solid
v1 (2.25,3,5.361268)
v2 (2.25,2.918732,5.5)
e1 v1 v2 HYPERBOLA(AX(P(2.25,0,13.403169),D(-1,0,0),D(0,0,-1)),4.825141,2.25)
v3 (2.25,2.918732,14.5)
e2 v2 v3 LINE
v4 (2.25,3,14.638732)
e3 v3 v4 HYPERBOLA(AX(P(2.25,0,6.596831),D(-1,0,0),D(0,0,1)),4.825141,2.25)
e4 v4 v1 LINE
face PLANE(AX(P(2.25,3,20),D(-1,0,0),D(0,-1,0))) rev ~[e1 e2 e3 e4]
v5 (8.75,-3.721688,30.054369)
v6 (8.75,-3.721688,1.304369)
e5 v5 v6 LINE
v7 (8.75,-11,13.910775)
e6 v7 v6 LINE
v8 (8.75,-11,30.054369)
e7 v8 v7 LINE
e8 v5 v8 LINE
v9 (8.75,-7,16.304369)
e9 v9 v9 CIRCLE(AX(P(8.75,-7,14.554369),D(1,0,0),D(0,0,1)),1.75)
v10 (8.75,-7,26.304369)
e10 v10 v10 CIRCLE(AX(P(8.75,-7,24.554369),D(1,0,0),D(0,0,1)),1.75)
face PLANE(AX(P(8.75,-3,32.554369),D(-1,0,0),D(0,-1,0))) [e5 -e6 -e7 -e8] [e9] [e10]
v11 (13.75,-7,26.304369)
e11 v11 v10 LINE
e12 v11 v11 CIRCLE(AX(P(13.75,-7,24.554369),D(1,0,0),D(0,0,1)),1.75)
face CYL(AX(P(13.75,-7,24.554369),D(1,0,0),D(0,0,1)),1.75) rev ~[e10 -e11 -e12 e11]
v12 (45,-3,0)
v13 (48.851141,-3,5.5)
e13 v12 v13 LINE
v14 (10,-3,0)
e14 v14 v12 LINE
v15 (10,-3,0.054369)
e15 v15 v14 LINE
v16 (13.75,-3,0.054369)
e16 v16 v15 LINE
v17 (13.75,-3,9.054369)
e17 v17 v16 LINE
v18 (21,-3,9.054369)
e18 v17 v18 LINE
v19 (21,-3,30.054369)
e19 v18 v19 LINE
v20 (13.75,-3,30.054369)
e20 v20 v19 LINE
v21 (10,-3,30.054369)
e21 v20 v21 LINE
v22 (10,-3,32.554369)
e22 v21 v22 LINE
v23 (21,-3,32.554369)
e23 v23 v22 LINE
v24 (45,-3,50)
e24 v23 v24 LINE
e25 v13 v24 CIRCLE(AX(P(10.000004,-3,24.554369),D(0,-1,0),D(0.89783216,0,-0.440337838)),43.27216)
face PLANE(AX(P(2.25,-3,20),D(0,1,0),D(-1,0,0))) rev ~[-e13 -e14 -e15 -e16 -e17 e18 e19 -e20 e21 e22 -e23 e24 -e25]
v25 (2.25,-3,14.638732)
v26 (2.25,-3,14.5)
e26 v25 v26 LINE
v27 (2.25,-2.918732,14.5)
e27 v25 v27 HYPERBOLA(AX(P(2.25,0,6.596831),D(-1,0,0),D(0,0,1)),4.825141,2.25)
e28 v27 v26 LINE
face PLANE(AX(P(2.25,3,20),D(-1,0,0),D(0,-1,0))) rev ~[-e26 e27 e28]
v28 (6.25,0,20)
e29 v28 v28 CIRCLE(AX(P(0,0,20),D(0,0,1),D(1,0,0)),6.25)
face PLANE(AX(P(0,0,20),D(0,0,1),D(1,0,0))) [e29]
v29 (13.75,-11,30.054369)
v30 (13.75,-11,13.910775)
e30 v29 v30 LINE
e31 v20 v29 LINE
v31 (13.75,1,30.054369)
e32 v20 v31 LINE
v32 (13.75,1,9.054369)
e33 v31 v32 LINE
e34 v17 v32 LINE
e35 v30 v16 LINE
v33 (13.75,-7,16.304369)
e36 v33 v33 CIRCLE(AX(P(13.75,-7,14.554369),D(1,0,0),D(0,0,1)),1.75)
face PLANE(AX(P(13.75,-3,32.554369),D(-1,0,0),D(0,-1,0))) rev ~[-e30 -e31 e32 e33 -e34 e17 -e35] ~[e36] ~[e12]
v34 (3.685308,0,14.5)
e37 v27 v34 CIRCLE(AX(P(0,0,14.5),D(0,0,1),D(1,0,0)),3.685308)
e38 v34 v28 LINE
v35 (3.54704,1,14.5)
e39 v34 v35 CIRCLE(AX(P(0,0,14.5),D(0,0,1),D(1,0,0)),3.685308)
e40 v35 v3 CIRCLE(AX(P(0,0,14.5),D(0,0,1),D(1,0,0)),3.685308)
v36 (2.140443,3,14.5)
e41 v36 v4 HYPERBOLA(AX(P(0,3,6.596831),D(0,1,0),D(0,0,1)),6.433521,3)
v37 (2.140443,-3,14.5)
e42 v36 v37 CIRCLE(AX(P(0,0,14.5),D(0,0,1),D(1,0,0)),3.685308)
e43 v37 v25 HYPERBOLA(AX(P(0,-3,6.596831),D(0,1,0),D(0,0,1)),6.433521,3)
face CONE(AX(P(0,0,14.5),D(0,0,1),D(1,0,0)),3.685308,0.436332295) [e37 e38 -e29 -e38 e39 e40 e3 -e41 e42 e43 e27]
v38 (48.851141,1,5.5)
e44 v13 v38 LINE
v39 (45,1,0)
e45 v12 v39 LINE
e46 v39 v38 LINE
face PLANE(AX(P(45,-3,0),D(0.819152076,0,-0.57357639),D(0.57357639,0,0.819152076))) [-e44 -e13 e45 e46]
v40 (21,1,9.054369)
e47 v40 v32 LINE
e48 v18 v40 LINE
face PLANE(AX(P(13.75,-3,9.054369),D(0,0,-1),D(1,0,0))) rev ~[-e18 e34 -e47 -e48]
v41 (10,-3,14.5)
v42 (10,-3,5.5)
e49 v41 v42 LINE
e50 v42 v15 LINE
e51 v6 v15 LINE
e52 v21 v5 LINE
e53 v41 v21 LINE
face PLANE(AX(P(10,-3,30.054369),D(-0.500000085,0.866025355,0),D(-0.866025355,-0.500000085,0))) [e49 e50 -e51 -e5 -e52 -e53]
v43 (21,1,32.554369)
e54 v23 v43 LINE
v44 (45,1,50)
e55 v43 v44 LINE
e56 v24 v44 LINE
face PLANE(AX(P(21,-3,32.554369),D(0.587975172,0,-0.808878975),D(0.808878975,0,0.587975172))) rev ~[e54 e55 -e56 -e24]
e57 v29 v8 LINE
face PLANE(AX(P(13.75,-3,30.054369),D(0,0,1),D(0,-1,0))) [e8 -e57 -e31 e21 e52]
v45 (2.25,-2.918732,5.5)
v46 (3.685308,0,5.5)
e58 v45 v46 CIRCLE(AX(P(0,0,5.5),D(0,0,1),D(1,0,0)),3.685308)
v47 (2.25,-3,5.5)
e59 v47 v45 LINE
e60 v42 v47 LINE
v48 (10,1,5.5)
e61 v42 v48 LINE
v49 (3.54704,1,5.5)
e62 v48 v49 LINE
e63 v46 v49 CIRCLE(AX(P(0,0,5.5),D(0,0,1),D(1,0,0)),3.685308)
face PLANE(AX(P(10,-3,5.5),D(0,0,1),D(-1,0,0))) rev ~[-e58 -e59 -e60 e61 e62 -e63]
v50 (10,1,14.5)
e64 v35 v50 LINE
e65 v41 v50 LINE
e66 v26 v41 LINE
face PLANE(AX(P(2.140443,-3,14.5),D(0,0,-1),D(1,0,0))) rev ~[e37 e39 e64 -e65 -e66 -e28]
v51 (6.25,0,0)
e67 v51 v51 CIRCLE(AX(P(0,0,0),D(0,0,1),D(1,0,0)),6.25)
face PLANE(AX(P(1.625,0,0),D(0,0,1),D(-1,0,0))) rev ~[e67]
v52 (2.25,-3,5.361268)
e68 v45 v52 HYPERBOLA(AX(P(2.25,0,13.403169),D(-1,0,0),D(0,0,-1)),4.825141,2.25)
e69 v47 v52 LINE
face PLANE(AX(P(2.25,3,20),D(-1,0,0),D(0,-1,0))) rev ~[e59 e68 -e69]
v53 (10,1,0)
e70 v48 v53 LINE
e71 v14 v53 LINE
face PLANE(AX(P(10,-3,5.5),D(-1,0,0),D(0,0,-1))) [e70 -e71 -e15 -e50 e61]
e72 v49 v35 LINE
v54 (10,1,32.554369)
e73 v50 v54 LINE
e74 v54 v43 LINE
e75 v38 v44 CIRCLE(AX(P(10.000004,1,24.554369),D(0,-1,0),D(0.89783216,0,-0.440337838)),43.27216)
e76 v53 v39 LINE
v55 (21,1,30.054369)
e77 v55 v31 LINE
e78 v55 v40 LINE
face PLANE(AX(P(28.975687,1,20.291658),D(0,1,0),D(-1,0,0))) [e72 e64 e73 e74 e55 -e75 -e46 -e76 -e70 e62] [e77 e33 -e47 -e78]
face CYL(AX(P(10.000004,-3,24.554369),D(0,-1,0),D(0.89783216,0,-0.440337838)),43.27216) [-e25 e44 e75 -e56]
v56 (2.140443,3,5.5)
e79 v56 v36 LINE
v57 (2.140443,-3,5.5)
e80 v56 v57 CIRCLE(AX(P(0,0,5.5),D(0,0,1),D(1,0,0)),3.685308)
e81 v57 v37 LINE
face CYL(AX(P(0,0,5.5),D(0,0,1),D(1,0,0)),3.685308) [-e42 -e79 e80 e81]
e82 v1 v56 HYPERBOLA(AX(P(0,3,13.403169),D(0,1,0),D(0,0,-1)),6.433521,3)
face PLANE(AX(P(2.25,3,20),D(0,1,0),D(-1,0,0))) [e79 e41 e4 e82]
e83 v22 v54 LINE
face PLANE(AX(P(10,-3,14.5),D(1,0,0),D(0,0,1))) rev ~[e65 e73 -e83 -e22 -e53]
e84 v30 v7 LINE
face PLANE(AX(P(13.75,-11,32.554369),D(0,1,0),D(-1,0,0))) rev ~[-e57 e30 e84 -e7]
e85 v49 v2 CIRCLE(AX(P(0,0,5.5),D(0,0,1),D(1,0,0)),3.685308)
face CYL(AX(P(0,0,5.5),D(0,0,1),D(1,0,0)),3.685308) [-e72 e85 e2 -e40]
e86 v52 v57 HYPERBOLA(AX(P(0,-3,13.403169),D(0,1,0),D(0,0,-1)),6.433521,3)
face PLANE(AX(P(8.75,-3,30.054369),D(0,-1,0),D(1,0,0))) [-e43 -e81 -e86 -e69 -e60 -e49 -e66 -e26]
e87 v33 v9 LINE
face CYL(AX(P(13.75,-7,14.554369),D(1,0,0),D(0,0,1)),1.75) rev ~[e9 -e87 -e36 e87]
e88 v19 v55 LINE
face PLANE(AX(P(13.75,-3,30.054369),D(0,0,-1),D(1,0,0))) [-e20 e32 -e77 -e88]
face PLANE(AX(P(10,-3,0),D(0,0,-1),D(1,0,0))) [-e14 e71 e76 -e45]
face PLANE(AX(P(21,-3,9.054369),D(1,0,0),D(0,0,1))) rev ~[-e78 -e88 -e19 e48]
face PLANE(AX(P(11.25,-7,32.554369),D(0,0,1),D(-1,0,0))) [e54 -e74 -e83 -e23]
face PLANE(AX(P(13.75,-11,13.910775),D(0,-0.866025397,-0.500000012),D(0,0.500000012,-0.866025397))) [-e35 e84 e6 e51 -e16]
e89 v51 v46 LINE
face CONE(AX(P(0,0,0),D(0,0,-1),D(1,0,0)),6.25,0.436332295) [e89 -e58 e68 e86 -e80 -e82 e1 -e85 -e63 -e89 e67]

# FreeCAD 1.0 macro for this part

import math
import FreeCAD as App
import Part
import Sketcher
from FreeCAD import Vector
Q = App.Units.Quantity


def add_polygon(sketch, points):
    """Adds a closed chain of lines whose ends are joined by coincident constraints."""
    first, n = sketch.GeometryCount, len(points)
    for a, b in zip(points, points[1:] + points[:1]):
        sketch.addGeometry(Part.LineSegment(App.Vector(*a, 0), App.Vector(*b, 0)), False)
    for i in range(n):
        sketch.addConstraint(Sketcher.Constraint("Coincident", first + i, 2, first + (i + 1) % n, 1))

doc = App.newDocument("Part")
params = doc.addObject("Spreadsheet::Sheet", "Params")
for row, (alias, value) in enumerate([
    ("sketch1_height", "9 mm"),
    ("sketch1_height2", "20 mm"),
    ("sketch1_width", "6.25 mm"),
    ("revolution_angle", "360 deg"),
    ("sketch2_height", "6 mm"),
    ("sketch2_width", "1.25 mm"),
    ("pad1_length", "20 mm"),
    ("sketch3_width", "35 mm"),
    ("sketch3_width2", "11 mm"),
    ("sketch3_height", "9 mm"),
    ("sketch3_height2", "5.5 mm"),
    ("pad2_length", "4 mm"),
    ("sketch4_height", "21 mm"),
    ("sketch4_width", "7.25 mm"),
    ("pocket1_length", "5 mm"),
    ("sketch5_width", "5 mm"),
    ("sketch5_height", "8 mm"),
    ("pad3_length", "32.5 mm"),
    ("sketch6_diameter", "3.5 mm"),
    ("sketch6_width", "8 mm"),
    ("sketch6_height", "2.5 mm"),
    ("pocket2_length", "5 mm"),
    ("sketch7_width", "1.25 mm"),
], start=1):
    params.set(f"A{row}", alias)
    params.set(f"B{row}", "=" + value)
    params.setAlias(f"B{row}", alias)

body = doc.addObject("PartDesign::Body", "Body")

# Sketch on XZ plane
sketch1 = doc.addObject("Sketcher::SketchObject", "Sketch")
body.addObject(sketch1)
sketch1.AttachmentSupport = (doc.XZ_Plane, [""])
sketch1.MapMode = "FlatFace"
add_polygon(sketch1, [(0, 0), (6, 0), (4, 6), (4, 14), (6, 20), (0, 20)])  # lines 0-5
sketch1.addConstraint(Sketcher.Constraint("Horizontal", 0))
sketch1.addConstraint(Sketcher.Constraint("Vertical", 2))
sketch1.addConstraint(Sketcher.Constraint("Horizontal", 4))
sketch1.addConstraint(Sketcher.Constraint("Vertical", 5))
sketch1.addConstraint(Sketcher.Constraint("Coincident", 5, 2, -1, 1))
sketch1.addConstraint(Sketcher.Constraint("Vertical", 0, 2, 3, 2))
sketch1.addConstraint(Sketcher.Constraint("Equal", 1, 3))
sketch1.addConstraint(Sketcher.Constraint("DistanceY", 2, 1, 2, 2, Q("9 mm")))
sketch1.addConstraint(Sketcher.Constraint("DistanceY", 5, 2, 5, 1, Q("20 mm")))
sketch1.addConstraint(Sketcher.Constraint("Angle", 1, Q("114.999999 deg")))
sketch1.addConstraint(Sketcher.Constraint("DistanceX", 0, 1, 0, 2, Q("6.25 mm")))
sketch1.setExpression("Constraints[13]", "Params.sketch1_height")
sketch1.setExpression("Constraints[14]", "Params.sketch1_height2")
sketch1.setExpression("Constraints[16]", "Params.sketch1_width")
revolution = doc.addObject("PartDesign::Revolution", "Revolution")
body.addObject(revolution)
revolution.Profile = sketch1
revolution.ReferenceAxis = (sketch1, ["V_Axis"])
revolution.setExpression("Angle", "Params.revolution_angle")

# Sketch on XY plane
sketch2 = doc.addObject("Sketcher::SketchObject", "Sketch001")
body.addObject(sketch2)
sketch2.AttachmentSupport = (doc.XY_Plane, [""])
sketch2.MapMode = "FlatFace"
sketch2.AttachmentOffset = App.Placement(Vector(0, 0, 20), App.Rotation())
add_polygon(sketch2, [(2.2, -3), (2.2, 3), (1, 3), (1, -3)])  # lines 0-3
sketch2.addConstraint(Sketcher.Constraint("Vertical", 0))
sketch2.addConstraint(Sketcher.Constraint("Horizontal", 1))
sketch2.addConstraint(Sketcher.Constraint("Vertical", 2))
sketch2.addConstraint(Sketcher.Constraint("Horizontal", 3))
sketch2.addConstraint(Sketcher.Constraint("DistanceY", 0, 1, 0, 2, Q("6 mm")))
sketch2.addConstraint(Sketcher.Constraint("DistanceY", -1, 1, 0, 2, Q("3 mm")))
sketch2.addConstraint(Sketcher.Constraint("DistanceX", -1, 1, 1, 2, Q("1 mm")))
sketch2.addConstraint(Sketcher.Constraint("DistanceX", 1, 2, 1, 1, Q("1.25 mm")))
sketch2.setExpression("Constraints[8]", "Params.sketch2_height")
sketch2.setExpression("Constraints[11]", "Params.sketch2_width")
pad1 = doc.addObject("PartDesign::Pad", "Pad")
body.addObject(pad1)
pad1.Profile = sketch2
pad1.setExpression("Length", "Params.pad1_length")
pad1.Reversed = True

# Sketch on XZ plane
sketch3 = doc.addObject("Sketcher::SketchObject", "Sketch002")
body.addObject(sketch3)
sketch3.AttachmentSupport = (doc.XZ_Plane, [""])
sketch3.MapMode = "FlatFace"
sketch3.AttachmentOffset = App.Placement(Vector(0, 0, 3), App.Rotation())
sketch3.addGeometry(Part.LineSegment(Vector(10, 14, 0), Vector(2, 14, 0)), False)
sketch3.addGeometry(Part.LineSegment(Vector(2, 14, 0), Vector(2, 6, 0)), False)
sketch3.addGeometry(Part.LineSegment(Vector(2, 6, 0), Vector(10, 6, 0)), False)
sketch3.addGeometry(Part.LineSegment(Vector(10, 6, 0), Vector(10, 0, 0)), False)
sketch3.addGeometry(Part.LineSegment(Vector(10, 0, 0), Vector(45, 0, 0)), False)
sketch3.addGeometry(Part.LineSegment(Vector(45, 0, 0), Vector(49, 6, 0)), False)
sketch3.addGeometry(Part.ArcOfCircle(Part.Circle(Vector(10, 25, 0), Vector(0, 0, 1), 43), math.radians(-26), math.radians(36)), False)
sketch3.addGeometry(Part.LineSegment(Vector(45, 50, 0), Vector(21, 33, 0)), False)
sketch3.addGeometry(Part.LineSegment(Vector(21, 33, 0), Vector(10, 33, 0)), False)
sketch3.addGeometry(Part.LineSegment(Vector(10, 33, 0), Vector(10, 14, 0)), False)
sketch3.addConstraint(Sketcher.Constraint("Coincident", 0, 2, 1, 1))
sketch3.addConstraint(Sketcher.Constraint("Coincident", 1, 2, 2, 1))
sketch3.addConstraint(Sketcher.Constraint("Coincident", 2, 2, 3, 1))
sketch3.addConstraint(Sketcher.Constraint("Coincident", 3, 2, 4, 1))
sketch3.addConstraint(Sketcher.Constraint("Coincident", 4, 2, 5, 1))
sketch3.addConstraint(Sketcher.Constraint("Coincident", 5, 2, 6, 1))
sketch3.addConstraint(Sketcher.Constraint("Coincident", 6, 2, 7, 1))
sketch3.addConstraint(Sketcher.Constraint("Coincident", 7, 2, 8, 1))
sketch3.addConstraint(Sketcher.Constraint("Coincident", 8, 2, 9, 1))
sketch3.addConstraint(Sketcher.Constraint("Coincident", 9, 2, 0, 1))
sketch3.addConstraint(Sketcher.Constraint("Horizontal", 0))
sketch3.addConstraint(Sketcher.Constraint("Vertical", 1))
sketch3.addConstraint(Sketcher.Constraint("Horizontal", 2))
sketch3.addConstraint(Sketcher.Constraint("Vertical", 3))
sketch3.addConstraint(Sketcher.Constraint("Horizontal", 4))
sketch3.addConstraint(Sketcher.Constraint("Horizontal", 8))
sketch3.addConstraint(Sketcher.Constraint("Vertical", 9))
sketch3.addConstraint(Sketcher.Constraint("PointOnObject", 3, 2, -1))
sketch3.addConstraint(Sketcher.Constraint("Horizontal", 2, 2, 5, 2))
sketch3.addConstraint(Sketcher.Constraint("Vertical", 4, 2, 6, 2))
sketch3.addConstraint(Sketcher.Constraint("Vertical", 3, 2, 8, 2))
sketch3.addConstraint(Sketcher.Constraint("DistanceX", 4, 1, 4, 2, Q("35 mm")))
sketch3.addConstraint(Sketcher.Constraint("DistanceX", 8, 2, 8, 1, Q("11 mm")))
sketch3.addConstraint(Sketcher.Constraint("DistanceY", 1, 2, 1, 1, Q("9 mm")))
sketch3.addConstraint(Sketcher.Constraint("Angle", 5, Q("55.000003 deg")))
sketch3.addConstraint(Sketcher.Constraint("DistanceY", 3, 2, 3, 1, Q("5.5 mm")))
sketch3.addConstraint(Sketcher.Constraint("DistanceX", -1, 1, 2, 2, Q("10 mm")))
sketch3.addConstraint(Sketcher.Constraint("DistanceY", -1, 1, 6, 2, Q("50 mm")))
sketch3.addConstraint(Sketcher.Constraint("DistanceY", 6, 3, 7, 2, Q("8 mm")))
sketch3.addConstraint(Sketcher.Constraint("Radius", 6, Q("43.27216 mm")))
sketch3.addConstraint(Sketcher.Constraint("DistanceX", 0, 2, 0, 1, Q("7.859557 mm")))
sketch3.setExpression("Constraints[21]", "Params.sketch3_width")
sketch3.setExpression("Constraints[22]", "Params.sketch3_width2")
sketch3.setExpression("Constraints[23]", "Params.sketch3_height")
sketch3.setExpression("Constraints[25]", "Params.sketch3_height2")
pad2 = doc.addObject("PartDesign::Pad", "Pad001")
body.addObject(pad2)
pad2.Profile = sketch3
pad2.setExpression("Length", "Params.pad2_length")
pad2.Reversed = True

# Sketch on XZ plane
sketch4 = doc.addObject("Sketcher::SketchObject", "Sketch003")
body.addObject(sketch4)
sketch4.AttachmentSupport = (doc.XZ_Plane, [""])
sketch4.MapMode = "FlatFace"
sketch4.AttachmentOffset = App.Placement(Vector(0, 0, 3), App.Rotation())
add_polygon(sketch4, [(14, 30), (14, 9), (21, 9), (21, 30)])  # lines 0-3
sketch4.addConstraint(Sketcher.Constraint("Vertical", 0))
sketch4.addConstraint(Sketcher.Constraint("Horizontal", 1))
sketch4.addConstraint(Sketcher.Constraint("Vertical", 2))
sketch4.addConstraint(Sketcher.Constraint("Horizontal", 3))
sketch4.addConstraint(Sketcher.Constraint("DistanceY", 0, 2, 0, 1, Q("21 mm")))
sketch4.addConstraint(Sketcher.Constraint("DistanceX", -1, 1, 1, 2, Q("21 mm")))
sketch4.addConstraint(Sketcher.Constraint("DistanceX", 1, 1, 1, 2, Q("7.25 mm")))
sketch4.addConstraint(Sketcher.Constraint("DistanceY", -1, 1, 0, 2, Q("9.054369 mm")))
sketch4.setExpression("Constraints[8]", "Params.sketch4_height")
sketch4.setExpression("Constraints[10]", "Params.sketch4_width")
pocket1 = doc.addObject("PartDesign::Pocket", "Pocket")
body.addObject(pocket1)
pocket1.Profile = sketch4
pocket1.setExpression("Length", "Params.pocket1_length")

# Sketch on XY plane
sketch5 = doc.addObject("Sketcher::SketchObject", "Sketch004")
body.addObject(sketch5)
sketch5.AttachmentSupport = (doc.XY_Plane, [""])
sketch5.MapMode = "FlatFace"
sketch5.AttachmentOffset = App.Placement(Vector(0, 0, 32.554369), App.Rotation())
add_polygon(sketch5, [(14, -11), (14, -3), (9, -3), (9, -11)])  # lines 0-3
sketch5.addConstraint(Sketcher.Constraint("Vertical", 0))
sketch5.addConstraint(Sketcher.Constraint("Horizontal", 1))
sketch5.addConstraint(Sketcher.Constraint("Vertical", 2))
sketch5.addConstraint(Sketcher.Constraint("Horizontal", 3))
sketch5.addConstraint(Sketcher.Constraint("DistanceX", 1, 2, 1, 1, Q("5 mm")))
sketch5.addConstraint(Sketcher.Constraint("DistanceY", 0, 1, 0, 2, Q("8 mm")))
sketch5.addConstraint(Sketcher.Constraint("DistanceY", 0, 2, -1, 1, Q("3 mm")))
sketch5.addConstraint(Sketcher.Constraint("DistanceX", -1, 1, 0, 2, Q("13.75 mm")))
sketch5.setExpression("Constraints[8]", "Params.sketch5_width")
sketch5.setExpression("Constraints[9]", "Params.sketch5_height")
pad3 = doc.addObject("PartDesign::Pad", "Pad002")
body.addObject(pad3)
pad3.Profile = sketch5
pad3.setExpression("Length", "Params.pad3_length")
pad3.Reversed = True

# Sketch on YZ plane
sketch6 = doc.addObject("Sketcher::SketchObject", "Sketch005")
body.addObject(sketch6)
sketch6.AttachmentSupport = (doc.YZ_Plane, [""])
sketch6.MapMode = "FlatFace"
sketch6.AttachmentOffset = App.Placement(Vector(0, 0, 13.75), App.Rotation())
sketch6.addGeometry(Part.Circle(Vector(-7, 14.6, 0), Vector(0, 0, 1), 1.8), False)  # 0
sketch6.addGeometry(Part.Circle(Vector(-7, 24.6, 0), Vector(0, 0, 1), 1.8), False)  # 1
add_polygon(sketch6, [(-11, 13.9), (-11, 0.1), (-3, 0.1)])  # lines 2-4
add_polygon(sketch6, [(-11, 30.1), (-3, 30.1), (-3, 32.6), (-11, 32.6)])  # lines 5-8
sketch6.addConstraint(Sketcher.Constraint("Vertical", 2))
sketch6.addConstraint(Sketcher.Constraint("Horizontal", 3))
sketch6.addConstraint(Sketcher.Constraint("Horizontal", 5))
sketch6.addConstraint(Sketcher.Constraint("Vertical", 6))
sketch6.addConstraint(Sketcher.Constraint("Horizontal", 7))
sketch6.addConstraint(Sketcher.Constraint("Vertical", 8))
sketch6.addConstraint(Sketcher.Constraint("Equal", 0, 1))
sketch6.addConstraint(Sketcher.Constraint("Vertical", 0, 3, 1, 3))
sketch6.addConstraint(Sketcher.Constraint("Vertical", 3, 2, 5, 2))
sketch6.addConstraint(Sketcher.Constraint("Vertical", 4, 2, 7, 2))
sketch6.addConstraint(Sketcher.Constraint("Diameter", 0, Q("3.5 mm")))
sketch6.addConstraint(Sketcher.Constraint("DistanceX", 3, 1, 3, 2, Q("8 mm")))
sketch6.addConstraint(Sketcher.Constraint("Angle", 4, Q("120.000001 deg")))
sketch6.addConstraint(Sketcher.Constraint("DistanceY", 6, 1, 6, 2, Q("2.5 mm")))
sketch6.addConstraint(Sketcher.Constraint("DistanceX", 0, 3, -1, 1, Q("7 mm")))
sketch6.addConstraint(Sketcher.Constraint("DistanceX", 2, 2, -1, 1, Q("11 mm")))
sketch6.addConstraint(Sketcher.Constraint("DistanceY", 0, 3, 1, 3, Q("10 mm")))
sketch6.addConstraint(Sketcher.Constraint("DistanceY", 3, 2, 5, 2, Q("30 mm")))
sketch6.addConstraint(Sketcher.Constraint("DistanceY", 1, 3, 6, 2, Q("8 mm")))
sketch6.addConstraint(Sketcher.Constraint("DistanceY", -1, 1, 0, 3, Q("14.554369 mm")))
sketch6.setExpression("Constraints[17]", "Params.sketch6_diameter")
sketch6.setExpression("Constraints[18]", "Params.sketch6_width")
sketch6.setExpression("Constraints[20]", "Params.sketch6_height")
pocket2 = doc.addObject("PartDesign::Pocket", "Pocket001")
body.addObject(pocket2)
pocket2.Profile = sketch6
pocket2.setExpression("Length", "Params.pocket2_length")

# Sketch on XY plane
sketch7 = doc.addObject("Sketcher::SketchObject", "Sketch006")
body.addObject(sketch7)
sketch7.AttachmentSupport = (doc.XY_Plane, [""])
sketch7.MapMode = "FlatFace"
sketch7.AttachmentOffset = App.Placement(Vector(0, 0, 30.054369), App.Rotation())
add_polygon(sketch7, [(8.8, -3.7), (10, -3), (8.8, -3)])  # lines 0-2
sketch7.addConstraint(Sketcher.Constraint("Horizontal", 1))
sketch7.addConstraint(Sketcher.Constraint("Vertical", 2))
sketch7.addConstraint(Sketcher.Constraint("Angle", 0, Q("30.000006 deg")))
sketch7.addConstraint(Sketcher.Constraint("DistanceX", -1, 1, 0, 2, Q("10 mm")))
sketch7.addConstraint(Sketcher.Constraint("DistanceY", 0, 2, -1, 1, Q("3 mm")))
sketch7.addConstraint(Sketcher.Constraint("DistanceX", 1, 2, 1, 1, Q("1.25 mm")))
sketch7.setExpression("Constraints[8]", "Params.sketch7_width")
pocket3 = doc.addObject("PartDesign::Pocket", "Pocket002")
body.addObject(pocket3)
pocket3.Profile = sketch7
pocket3.Type = "ThroughAll"

doc.recompute()
